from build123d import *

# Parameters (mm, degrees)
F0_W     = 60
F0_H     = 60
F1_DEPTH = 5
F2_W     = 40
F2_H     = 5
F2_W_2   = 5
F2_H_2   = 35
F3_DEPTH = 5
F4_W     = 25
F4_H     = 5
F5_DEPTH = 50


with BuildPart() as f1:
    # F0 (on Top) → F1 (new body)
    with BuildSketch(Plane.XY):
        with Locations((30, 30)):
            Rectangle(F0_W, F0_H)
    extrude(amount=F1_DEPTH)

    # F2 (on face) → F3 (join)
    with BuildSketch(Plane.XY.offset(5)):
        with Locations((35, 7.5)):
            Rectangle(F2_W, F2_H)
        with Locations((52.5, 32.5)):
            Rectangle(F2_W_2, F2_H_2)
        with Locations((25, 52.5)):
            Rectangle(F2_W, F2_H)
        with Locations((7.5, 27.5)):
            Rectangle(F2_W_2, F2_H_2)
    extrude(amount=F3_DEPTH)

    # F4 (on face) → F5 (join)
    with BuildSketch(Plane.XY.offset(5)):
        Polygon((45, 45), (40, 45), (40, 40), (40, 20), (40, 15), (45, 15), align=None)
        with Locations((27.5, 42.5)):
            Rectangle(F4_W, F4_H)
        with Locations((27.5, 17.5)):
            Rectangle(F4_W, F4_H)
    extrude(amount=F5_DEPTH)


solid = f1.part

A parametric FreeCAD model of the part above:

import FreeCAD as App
import Part
import Sketcher


def add_polygon(sketch, points):
    """Adds a closed chain of lines whose ends are joined by coincident constraints."""
    first, n = sketch.GeometryCount, len(points)
    for a, b in zip(points, points[1:] + points[:1]):
        sketch.addGeometry(Part.LineSegment(App.Vector(*a, 0), App.Vector(*b, 0)), False)
    for i in range(n):
        sketch.addConstraint(Sketcher.Constraint("Coincident", first + i, 2, first + (i + 1) % n, 1))

doc = App.newDocument("Part")
body = doc.addObject("PartDesign::Body", "Body")

sketch1 = body.newObject("Sketcher::SketchObject", "Sketch")
sketch1.AttachmentSupport = (doc.getObject("XY_Plane"), [""])
sketch1.MapMode = "FlatFace"
add_polygon(sketch1, [(0, 60), (0, 0), (60, 0), (60, 60)])
sketch1.addConstraint([
    Sketcher.Constraint("Vertical", 0),
    Sketcher.Constraint("Horizontal", 1),
    Sketcher.Constraint("Vertical", 2),
    Sketcher.Constraint("Horizontal", 3),
    Sketcher.Constraint("Coincident", 0, 2, -1, 1),
    Sketcher.Constraint("Equal", 3, 0),
    Sketcher.Constraint("DistanceX", 1, 1, 1, 2, 60.0),
])
pad1 = body.newObject("PartDesign::Pad", "Pad")
pad1.Profile = sketch1
pad1.Length = 5

sketch2 = body.newObject("Sketcher::SketchObject", "Sketch001")
sketch2.AttachmentSupport = (doc.getObject("XY_Plane"), [""])
sketch2.MapMode = "FlatFace"
sketch2.AttachmentOffset = App.Placement(App.Vector(0, 0, 5), App.Rotation())
add_polygon(sketch2, [(15, 10), (15, 5), (55, 5), (55, 10)])
add_polygon(sketch2, [(50, 50), (50, 15), (55, 15), (55, 50)])
add_polygon(sketch2, [(5, 55), (5, 50), (45, 50), (45, 55)])
add_polygon(sketch2, [(5, 45), (5, 10), (10, 10), (10, 45)])
sketch2.addConstraint([
    Sketcher.Constraint("Vertical", 0),
    Sketcher.Constraint("Horizontal", 1),
    Sketcher.Constraint("Vertical", 2),
    Sketcher.Constraint("Horizontal", 3),
    Sketcher.Constraint("Vertical", 4),
    Sketcher.Constraint("Horizontal", 5),
    Sketcher.Constraint("Vertical", 6),
    Sketcher.Constraint("Horizontal", 7),
    Sketcher.Constraint("Vertical", 8),
    Sketcher.Constraint("Horizontal", 9),
    Sketcher.Constraint("Vertical", 10),
    Sketcher.Constraint("Horizontal", 11),
    Sketcher.Constraint("Vertical", 12),
    Sketcher.Constraint("Horizontal", 13),
    Sketcher.Constraint("Vertical", 14),
    Sketcher.Constraint("Horizontal", 15),
    Sketcher.Constraint("Horizontal", 7, 2, 8, 2),
    Sketcher.Constraint("Horizontal", 3, 2, 12, 2),
    Sketcher.Constraint("Vertical", 2, 2, 5, 2),
    Sketcher.Constraint("Vertical", 11, 2, 12, 2),
    Sketcher.Constraint("Equal", 3, 9),
    Sketcher.Constraint("Equal", 7, 13),
    Sketcher.Constraint("Equal", 15, 0),
    Sketcher.Constraint("Equal", 2, 8),
    Sketcher.Constraint("Equal", 6, 12),
    Sketcher.Constraint("DistanceX", 1, 1, 1, 2, 40.0),
    Sketcher.Constraint("DistanceX", 5, 1, 5, 2, 5.0),
    Sketcher.Constraint("DistanceY", 4, 2, 4, 1, 35.0),
    Sketcher.Constraint("DistanceX", -1, 1, 0, 2, 15.0),
    Sketcher.Constraint("DistanceY", -1, 1, 0, 2, 5.0),
    Sketcher.Constraint("DistanceY", -1, 1, 4, 2, 15.0),
    Sketcher.Constraint("DistanceX", -1, 1, 8, 2, 5.0),
])
pad2 = body.newObject("PartDesign::Pad", "Pad001")
pad2.Profile = sketch2
pad2.Length = 5

sketch3 = body.newObject("Sketcher::SketchObject", "Sketch002")
sketch3.AttachmentSupport = (doc.getObject("XY_Plane"), [""])
sketch3.MapMode = "FlatFace"
sketch3.AttachmentOffset = App.Placement(App.Vector(0, 0, 5), App.Rotation())
add_polygon(sketch3, [(45, 45), (15, 45), (15, 40), (40, 40), (40, 20), (15, 20), (15, 15), (45, 15)])
sketch3.addConstraint([
    Sketcher.Constraint("Horizontal", 0),
    Sketcher.Constraint("Vertical", 1),
    Sketcher.Constraint("Horizontal", 2),
    Sketcher.Constraint("Vertical", 3),
    Sketcher.Constraint("Horizontal", 4),
    Sketcher.Constraint("Vertical", 5),
    Sketcher.Constraint("Horizontal", 6),
    Sketcher.Constraint("Vertical", 7),
    Sketcher.Constraint("Vertical", 1, 2, 4, 2),
    Sketcher.Constraint("Equal", 1, 5),
    Sketcher.Constraint("Equal", 6, 7),
    Sketcher.Constraint("DistanceX", 0, 2, 0, 1, 30.0),
    Sketcher.Constraint("DistanceX", 2, 1, 2, 2, 25.0),
    Sketcher.Constraint("DistanceY", 1, 2, 1, 1, 5.0),
    Sketcher.Constraint("DistanceX", -1, 1, 0, 2, 15.0),
    Sketcher.Constraint("DistanceY", -1, 1, 0, 2, 45.0),
])
pad3 = body.newObject("PartDesign::Pad", "Pad002")
pad3.Profile = sketch3
pad3.Length = 50

doc.recompute()
